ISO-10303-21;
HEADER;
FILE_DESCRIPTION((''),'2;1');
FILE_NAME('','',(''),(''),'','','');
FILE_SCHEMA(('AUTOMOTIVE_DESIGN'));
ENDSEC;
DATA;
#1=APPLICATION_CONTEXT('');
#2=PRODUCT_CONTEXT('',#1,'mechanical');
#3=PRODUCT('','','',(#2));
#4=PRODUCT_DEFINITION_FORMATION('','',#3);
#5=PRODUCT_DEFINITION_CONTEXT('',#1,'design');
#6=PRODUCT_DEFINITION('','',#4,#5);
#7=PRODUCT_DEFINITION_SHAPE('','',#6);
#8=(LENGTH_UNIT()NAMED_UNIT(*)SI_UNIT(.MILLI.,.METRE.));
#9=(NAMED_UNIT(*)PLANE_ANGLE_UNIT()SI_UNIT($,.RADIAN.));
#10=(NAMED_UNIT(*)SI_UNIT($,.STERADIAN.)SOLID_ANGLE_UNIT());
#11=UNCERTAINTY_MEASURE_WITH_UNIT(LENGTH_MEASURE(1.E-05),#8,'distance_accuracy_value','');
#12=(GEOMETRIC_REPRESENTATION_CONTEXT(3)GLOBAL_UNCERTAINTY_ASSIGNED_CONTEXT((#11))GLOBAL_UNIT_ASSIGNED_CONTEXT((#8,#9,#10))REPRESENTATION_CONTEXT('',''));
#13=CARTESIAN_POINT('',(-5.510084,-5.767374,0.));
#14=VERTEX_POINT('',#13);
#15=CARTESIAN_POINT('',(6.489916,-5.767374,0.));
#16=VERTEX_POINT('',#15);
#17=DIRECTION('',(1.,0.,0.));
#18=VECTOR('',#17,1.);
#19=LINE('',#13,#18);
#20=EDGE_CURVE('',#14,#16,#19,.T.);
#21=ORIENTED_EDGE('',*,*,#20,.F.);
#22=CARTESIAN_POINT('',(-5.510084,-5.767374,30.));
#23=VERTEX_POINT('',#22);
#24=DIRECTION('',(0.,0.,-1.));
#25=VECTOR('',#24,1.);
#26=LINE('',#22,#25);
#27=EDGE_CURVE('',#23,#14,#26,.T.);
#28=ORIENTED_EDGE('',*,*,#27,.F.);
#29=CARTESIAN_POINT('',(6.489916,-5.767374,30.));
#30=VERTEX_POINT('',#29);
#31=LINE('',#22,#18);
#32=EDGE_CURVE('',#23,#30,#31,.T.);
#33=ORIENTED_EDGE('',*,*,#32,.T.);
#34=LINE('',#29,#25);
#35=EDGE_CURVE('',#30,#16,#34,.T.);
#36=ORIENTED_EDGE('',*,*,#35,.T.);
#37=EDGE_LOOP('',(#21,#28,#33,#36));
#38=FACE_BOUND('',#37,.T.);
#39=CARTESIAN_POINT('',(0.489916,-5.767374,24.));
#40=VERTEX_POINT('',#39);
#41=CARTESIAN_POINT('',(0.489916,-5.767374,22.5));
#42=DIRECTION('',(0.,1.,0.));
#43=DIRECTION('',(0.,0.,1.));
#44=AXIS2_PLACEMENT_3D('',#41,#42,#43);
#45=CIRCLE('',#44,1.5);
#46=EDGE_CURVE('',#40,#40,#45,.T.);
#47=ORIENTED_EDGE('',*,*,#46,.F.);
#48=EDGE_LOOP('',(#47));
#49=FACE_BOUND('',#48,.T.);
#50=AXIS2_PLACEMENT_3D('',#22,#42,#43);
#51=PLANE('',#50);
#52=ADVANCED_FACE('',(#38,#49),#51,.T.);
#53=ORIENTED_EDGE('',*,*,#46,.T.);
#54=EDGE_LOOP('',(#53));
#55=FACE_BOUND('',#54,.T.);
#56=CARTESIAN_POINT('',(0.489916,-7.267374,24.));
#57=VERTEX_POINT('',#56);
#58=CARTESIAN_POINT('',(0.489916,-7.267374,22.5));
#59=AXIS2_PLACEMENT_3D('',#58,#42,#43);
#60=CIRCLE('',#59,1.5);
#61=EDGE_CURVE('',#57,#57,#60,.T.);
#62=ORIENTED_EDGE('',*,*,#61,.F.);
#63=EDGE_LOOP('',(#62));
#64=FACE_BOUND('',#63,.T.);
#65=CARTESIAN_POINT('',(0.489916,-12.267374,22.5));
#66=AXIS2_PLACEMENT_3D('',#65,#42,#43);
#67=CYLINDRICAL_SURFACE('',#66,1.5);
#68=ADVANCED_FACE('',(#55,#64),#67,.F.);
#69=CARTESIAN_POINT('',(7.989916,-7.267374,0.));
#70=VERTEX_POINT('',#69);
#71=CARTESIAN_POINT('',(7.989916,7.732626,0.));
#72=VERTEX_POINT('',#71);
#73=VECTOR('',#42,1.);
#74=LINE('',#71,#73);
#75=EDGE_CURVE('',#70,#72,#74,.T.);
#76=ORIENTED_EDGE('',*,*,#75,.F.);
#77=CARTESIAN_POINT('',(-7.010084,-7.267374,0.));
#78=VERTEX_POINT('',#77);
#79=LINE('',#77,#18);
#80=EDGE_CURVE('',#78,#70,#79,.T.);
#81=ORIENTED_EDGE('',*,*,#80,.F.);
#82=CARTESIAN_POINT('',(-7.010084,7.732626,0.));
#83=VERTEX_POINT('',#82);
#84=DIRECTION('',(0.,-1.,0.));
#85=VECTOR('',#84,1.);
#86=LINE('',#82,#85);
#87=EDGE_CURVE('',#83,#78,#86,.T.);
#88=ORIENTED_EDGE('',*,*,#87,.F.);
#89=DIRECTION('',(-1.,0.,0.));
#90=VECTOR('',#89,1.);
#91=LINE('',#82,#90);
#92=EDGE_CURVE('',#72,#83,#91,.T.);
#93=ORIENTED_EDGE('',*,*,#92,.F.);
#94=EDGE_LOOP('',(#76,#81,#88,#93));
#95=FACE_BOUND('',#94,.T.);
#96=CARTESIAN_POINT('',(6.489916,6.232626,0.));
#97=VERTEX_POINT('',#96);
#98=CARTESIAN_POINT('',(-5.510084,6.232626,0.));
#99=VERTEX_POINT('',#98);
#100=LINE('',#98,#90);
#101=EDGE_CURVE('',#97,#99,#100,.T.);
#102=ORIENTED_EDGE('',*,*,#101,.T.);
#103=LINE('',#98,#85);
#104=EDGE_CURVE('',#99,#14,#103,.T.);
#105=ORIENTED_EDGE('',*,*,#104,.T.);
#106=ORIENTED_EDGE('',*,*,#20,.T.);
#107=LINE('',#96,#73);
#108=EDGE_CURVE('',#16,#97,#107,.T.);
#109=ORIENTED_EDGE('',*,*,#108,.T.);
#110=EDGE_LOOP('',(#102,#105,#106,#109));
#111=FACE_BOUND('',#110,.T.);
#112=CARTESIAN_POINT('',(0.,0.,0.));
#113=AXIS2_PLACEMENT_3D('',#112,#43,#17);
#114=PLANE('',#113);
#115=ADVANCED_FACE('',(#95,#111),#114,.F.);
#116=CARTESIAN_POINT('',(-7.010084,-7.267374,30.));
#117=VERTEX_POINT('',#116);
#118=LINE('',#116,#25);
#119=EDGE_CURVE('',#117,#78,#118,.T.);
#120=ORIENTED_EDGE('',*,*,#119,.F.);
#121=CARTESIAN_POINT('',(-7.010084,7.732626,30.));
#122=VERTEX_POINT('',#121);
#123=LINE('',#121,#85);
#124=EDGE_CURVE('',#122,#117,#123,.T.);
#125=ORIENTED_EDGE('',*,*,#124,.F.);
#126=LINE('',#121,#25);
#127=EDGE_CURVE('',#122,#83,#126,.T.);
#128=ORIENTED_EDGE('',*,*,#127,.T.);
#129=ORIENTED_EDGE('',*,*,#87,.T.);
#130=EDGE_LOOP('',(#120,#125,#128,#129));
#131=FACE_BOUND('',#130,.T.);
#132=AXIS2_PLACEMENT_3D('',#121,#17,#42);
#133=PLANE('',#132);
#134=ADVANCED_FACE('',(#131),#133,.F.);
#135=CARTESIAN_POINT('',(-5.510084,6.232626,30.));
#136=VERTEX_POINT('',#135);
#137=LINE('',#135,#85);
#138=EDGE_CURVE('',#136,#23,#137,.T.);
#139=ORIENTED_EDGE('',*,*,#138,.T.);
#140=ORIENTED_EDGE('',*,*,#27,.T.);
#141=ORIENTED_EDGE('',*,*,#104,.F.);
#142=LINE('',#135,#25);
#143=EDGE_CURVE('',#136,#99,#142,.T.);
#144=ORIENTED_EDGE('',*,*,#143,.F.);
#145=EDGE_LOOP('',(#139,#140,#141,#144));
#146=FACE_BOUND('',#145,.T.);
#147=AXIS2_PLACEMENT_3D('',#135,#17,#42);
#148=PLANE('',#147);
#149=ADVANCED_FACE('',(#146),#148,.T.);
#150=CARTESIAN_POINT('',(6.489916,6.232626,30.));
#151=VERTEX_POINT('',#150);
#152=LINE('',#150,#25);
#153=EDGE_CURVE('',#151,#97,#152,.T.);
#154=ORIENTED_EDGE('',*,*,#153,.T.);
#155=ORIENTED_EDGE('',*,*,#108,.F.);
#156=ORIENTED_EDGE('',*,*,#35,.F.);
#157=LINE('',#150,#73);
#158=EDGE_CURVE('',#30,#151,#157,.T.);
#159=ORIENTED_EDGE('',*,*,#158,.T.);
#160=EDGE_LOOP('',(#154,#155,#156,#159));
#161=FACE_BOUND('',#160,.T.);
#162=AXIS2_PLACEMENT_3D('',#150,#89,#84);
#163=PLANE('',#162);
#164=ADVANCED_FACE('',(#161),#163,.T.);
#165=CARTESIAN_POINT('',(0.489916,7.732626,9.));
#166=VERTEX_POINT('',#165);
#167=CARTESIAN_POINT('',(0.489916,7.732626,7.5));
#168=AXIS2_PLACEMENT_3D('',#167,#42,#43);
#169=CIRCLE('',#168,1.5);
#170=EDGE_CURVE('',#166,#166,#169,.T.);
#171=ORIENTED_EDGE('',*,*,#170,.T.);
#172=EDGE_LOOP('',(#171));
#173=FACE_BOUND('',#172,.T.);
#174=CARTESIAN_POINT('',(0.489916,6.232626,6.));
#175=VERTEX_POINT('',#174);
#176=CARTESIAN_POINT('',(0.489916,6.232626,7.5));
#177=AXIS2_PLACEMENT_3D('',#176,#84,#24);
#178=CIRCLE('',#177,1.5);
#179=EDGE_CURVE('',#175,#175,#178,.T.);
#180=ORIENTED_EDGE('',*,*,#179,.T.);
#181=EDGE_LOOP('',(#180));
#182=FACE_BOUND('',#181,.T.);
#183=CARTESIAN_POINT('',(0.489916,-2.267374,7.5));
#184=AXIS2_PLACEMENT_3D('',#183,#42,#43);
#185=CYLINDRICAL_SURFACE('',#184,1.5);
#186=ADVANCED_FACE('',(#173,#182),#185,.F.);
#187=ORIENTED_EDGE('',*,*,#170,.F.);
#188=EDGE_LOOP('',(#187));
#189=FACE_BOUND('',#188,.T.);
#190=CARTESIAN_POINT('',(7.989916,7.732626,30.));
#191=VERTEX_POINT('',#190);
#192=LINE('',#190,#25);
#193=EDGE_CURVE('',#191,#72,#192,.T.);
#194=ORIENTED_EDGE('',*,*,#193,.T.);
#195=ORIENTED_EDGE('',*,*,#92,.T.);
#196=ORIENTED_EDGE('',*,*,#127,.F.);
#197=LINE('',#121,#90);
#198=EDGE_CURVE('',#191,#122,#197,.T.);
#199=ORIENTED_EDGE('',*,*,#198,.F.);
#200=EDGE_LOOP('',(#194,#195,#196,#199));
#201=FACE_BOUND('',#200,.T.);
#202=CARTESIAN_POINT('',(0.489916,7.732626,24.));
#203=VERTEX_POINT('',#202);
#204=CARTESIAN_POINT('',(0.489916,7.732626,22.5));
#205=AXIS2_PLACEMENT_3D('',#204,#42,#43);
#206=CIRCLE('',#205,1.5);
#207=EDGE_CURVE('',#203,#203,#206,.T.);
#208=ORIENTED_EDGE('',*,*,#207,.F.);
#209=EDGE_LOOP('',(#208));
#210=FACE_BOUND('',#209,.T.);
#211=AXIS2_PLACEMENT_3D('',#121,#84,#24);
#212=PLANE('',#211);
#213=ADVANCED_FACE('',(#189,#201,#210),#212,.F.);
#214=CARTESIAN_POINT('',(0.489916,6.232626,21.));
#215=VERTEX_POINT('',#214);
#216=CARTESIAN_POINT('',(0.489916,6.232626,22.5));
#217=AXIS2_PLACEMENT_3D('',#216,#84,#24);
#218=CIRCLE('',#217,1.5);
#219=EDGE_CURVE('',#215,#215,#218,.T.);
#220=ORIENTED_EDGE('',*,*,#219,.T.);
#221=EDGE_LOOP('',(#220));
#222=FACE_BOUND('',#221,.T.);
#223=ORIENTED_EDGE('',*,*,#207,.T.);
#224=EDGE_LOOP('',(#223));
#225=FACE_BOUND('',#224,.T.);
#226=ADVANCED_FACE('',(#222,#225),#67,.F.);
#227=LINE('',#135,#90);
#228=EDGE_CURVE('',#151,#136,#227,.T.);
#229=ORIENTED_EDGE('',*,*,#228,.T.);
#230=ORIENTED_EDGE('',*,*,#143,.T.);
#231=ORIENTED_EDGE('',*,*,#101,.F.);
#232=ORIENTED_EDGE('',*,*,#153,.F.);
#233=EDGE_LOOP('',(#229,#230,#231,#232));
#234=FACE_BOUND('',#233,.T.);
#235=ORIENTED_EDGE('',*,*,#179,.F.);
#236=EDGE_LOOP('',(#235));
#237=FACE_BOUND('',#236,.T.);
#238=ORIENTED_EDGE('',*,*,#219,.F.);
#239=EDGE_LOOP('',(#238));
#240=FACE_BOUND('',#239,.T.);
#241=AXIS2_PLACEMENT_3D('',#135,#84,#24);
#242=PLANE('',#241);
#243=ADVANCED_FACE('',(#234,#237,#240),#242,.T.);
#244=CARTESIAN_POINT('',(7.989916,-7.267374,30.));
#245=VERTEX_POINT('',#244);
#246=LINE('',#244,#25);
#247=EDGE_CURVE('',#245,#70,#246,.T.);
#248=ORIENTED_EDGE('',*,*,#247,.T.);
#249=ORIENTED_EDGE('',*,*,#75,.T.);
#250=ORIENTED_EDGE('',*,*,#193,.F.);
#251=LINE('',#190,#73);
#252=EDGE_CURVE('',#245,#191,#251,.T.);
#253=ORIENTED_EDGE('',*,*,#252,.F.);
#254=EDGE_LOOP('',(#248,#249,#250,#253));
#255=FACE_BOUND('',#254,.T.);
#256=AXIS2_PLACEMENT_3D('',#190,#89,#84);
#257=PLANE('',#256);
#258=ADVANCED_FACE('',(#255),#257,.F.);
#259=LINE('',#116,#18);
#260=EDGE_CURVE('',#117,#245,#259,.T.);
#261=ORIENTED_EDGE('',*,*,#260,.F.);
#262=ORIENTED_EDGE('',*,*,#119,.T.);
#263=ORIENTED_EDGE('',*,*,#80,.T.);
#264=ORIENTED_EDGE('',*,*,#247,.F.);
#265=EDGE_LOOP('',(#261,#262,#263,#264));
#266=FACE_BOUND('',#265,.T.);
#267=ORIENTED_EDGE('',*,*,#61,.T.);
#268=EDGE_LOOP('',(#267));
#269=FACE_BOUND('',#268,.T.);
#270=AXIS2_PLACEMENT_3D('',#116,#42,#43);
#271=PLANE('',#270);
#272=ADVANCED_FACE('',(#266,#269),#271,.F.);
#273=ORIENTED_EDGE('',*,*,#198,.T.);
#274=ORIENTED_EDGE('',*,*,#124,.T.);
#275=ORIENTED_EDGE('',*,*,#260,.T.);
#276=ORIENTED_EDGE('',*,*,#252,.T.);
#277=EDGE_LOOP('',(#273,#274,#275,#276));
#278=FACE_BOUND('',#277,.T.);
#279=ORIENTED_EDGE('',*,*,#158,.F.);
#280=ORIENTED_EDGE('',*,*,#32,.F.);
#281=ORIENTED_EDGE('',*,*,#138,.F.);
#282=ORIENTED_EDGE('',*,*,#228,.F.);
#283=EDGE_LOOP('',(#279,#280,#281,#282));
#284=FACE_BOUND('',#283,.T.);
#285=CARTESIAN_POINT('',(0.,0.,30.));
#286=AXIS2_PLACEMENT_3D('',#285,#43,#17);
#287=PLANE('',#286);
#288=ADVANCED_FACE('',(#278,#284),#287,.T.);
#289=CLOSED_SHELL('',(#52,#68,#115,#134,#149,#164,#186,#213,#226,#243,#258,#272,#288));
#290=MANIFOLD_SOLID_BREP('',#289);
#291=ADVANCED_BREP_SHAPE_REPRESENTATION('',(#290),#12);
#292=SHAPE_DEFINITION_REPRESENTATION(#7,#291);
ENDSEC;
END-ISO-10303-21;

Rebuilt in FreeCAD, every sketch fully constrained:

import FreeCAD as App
import Part
import Sketcher
from FreeCAD import Vector
Q = App.Units.Quantity

doc = App.newDocument("Part")
body = doc.addObject("PartDesign::Body", "Body")

# Sketch on XY plane
sketch1 = body.newObject("Sketcher::SketchObject", "Sketch")
sketch1.AttachmentSupport = (doc.getObject("XY_Plane"), [""])
sketch1.MapMode = "FlatFace"
sketch1.addGeometry([
    Part.LineSegment(Vector(-7, 8, 0), Vector(-7, -7, 0)),  # 0
    Part.LineSegment(Vector(-7, -7, 0), Vector(8, -7, 0)),  # 1
    Part.LineSegment(Vector(8, -7, 0), Vector(8, 8, 0)),  # 2
    Part.LineSegment(Vector(8, 8, 0), Vector(-7, 8, 0)),  # 3
    Part.LineSegment(Vector(6, -6, 0), Vector(-6, -6, 0)),  # 4
    Part.LineSegment(Vector(-6, -6, 0), Vector(-6, 6, 0)),  # 5
    Part.LineSegment(Vector(-6, 6, 0), Vector(6, 6, 0)),  # 6
    Part.LineSegment(Vector(6, 6, 0), Vector(6, -6, 0)),  # 7
], False)
sketch1.addConstraint([
    Sketcher.Constraint("Coincident", 0, 2, 1, 1),
    Sketcher.Constraint("Coincident", 1, 2, 2, 1),
    Sketcher.Constraint("Coincident", 2, 2, 3, 1),
    Sketcher.Constraint("Coincident", 3, 2, 0, 1),
    Sketcher.Constraint("Coincident", 4, 2, 5, 1),
    Sketcher.Constraint("Coincident", 5, 2, 6, 1),
    Sketcher.Constraint("Coincident", 6, 2, 7, 1),
    Sketcher.Constraint("Coincident", 7, 2, 4, 1),
    Sketcher.Constraint("Vertical", 0),
    Sketcher.Constraint("Horizontal", 1),
    Sketcher.Constraint("Vertical", 2),
    Sketcher.Constraint("Horizontal", 3),
    Sketcher.Constraint("Horizontal", 4),
    Sketcher.Constraint("Vertical", 5),
    Sketcher.Constraint("Horizontal", 6),
    Sketcher.Constraint("Vertical", 7),
    Sketcher.Constraint("Equal", 3, 0),
    Sketcher.Constraint("Equal", 6, 5),
    Sketcher.Constraint("DistanceX", 1, 1, 1, 2, Q("15 mm")),
    Sketcher.Constraint("DistanceX", 4, 2, 4, 1, Q("12 mm")),
    Sketcher.Constraint("DistanceX", 0, 2, 4, 2, Q("1.5 mm")),
    Sketcher.Constraint("DistanceY", 0, 2, 4, 2, Q("1.5 mm")),
    Sketcher.Constraint("DistanceX", 0, 2, -1, 1, Q("7.010084 mm")),
    Sketcher.Constraint("DistanceY", 0, 2, -1, 1, Q("7.267374 mm")),
])
pad1 = body.newObject("PartDesign::Pad", "Pad")
pad1.Profile = sketch1
pad1.Length = 30

# Sketch on XZ plane
sketch2 = body.newObject("Sketcher::SketchObject", "Sketch001")
sketch2.AttachmentSupport = (doc.getObject("XZ_Plane"), [""])
sketch2.MapMode = "FlatFace"
sketch2.AttachmentOffset = App.Placement(Vector(0, 0, -7.732626), App.Rotation())
sketch2.addGeometry(Part.Circle(Vector(0.5, 22.5, 0), Vector(0, 0, 1), 1.5), False)
sketch2.addConstraint([
    Sketcher.Constraint("Diameter", 0, Q("3 mm")),
    Sketcher.Constraint("DistanceY", -1, 1, 0, 3, Q("22.5 mm")),
    Sketcher.Constraint("DistanceX", -1, 1, 0, 3, Q("0.489916 mm")),
])
pocket1 = body.newObject("PartDesign::Pocket", "Pocket")
pocket1.Profile = sketch2
pocket1.Length = 20
pocket1.Reversed = True

# Sketch on XZ plane
sketch3 = body.newObject("Sketcher::SketchObject", "Sketch002")
sketch3.AttachmentSupport = (doc.getObject("XZ_Plane"), [""])
sketch3.MapMode = "FlatFace"
sketch3.AttachmentOffset = App.Placement(Vector(0, 0, -7.732626), App.Rotation())
sketch3.addGeometry(Part.Circle(Vector(0.5, 7.5, 0), Vector(0, 0, 1), 1.5), False)
sketch3.addConstraint([
    Sketcher.Constraint("Diameter", 0, Q("3 mm")),
    Sketcher.Constraint("DistanceY", -1, 1, 0, 3, Q("7.5 mm")),
    Sketcher.Constraint("DistanceX", -1, 1, 0, 3, Q("0.489916 mm")),
])
pocket2 = body.newObject("PartDesign::Pocket", "Pocket001")
pocket2.Profile = sketch3
pocket2.Length = 10
pocket2.Reversed = True

doc.recompute()
